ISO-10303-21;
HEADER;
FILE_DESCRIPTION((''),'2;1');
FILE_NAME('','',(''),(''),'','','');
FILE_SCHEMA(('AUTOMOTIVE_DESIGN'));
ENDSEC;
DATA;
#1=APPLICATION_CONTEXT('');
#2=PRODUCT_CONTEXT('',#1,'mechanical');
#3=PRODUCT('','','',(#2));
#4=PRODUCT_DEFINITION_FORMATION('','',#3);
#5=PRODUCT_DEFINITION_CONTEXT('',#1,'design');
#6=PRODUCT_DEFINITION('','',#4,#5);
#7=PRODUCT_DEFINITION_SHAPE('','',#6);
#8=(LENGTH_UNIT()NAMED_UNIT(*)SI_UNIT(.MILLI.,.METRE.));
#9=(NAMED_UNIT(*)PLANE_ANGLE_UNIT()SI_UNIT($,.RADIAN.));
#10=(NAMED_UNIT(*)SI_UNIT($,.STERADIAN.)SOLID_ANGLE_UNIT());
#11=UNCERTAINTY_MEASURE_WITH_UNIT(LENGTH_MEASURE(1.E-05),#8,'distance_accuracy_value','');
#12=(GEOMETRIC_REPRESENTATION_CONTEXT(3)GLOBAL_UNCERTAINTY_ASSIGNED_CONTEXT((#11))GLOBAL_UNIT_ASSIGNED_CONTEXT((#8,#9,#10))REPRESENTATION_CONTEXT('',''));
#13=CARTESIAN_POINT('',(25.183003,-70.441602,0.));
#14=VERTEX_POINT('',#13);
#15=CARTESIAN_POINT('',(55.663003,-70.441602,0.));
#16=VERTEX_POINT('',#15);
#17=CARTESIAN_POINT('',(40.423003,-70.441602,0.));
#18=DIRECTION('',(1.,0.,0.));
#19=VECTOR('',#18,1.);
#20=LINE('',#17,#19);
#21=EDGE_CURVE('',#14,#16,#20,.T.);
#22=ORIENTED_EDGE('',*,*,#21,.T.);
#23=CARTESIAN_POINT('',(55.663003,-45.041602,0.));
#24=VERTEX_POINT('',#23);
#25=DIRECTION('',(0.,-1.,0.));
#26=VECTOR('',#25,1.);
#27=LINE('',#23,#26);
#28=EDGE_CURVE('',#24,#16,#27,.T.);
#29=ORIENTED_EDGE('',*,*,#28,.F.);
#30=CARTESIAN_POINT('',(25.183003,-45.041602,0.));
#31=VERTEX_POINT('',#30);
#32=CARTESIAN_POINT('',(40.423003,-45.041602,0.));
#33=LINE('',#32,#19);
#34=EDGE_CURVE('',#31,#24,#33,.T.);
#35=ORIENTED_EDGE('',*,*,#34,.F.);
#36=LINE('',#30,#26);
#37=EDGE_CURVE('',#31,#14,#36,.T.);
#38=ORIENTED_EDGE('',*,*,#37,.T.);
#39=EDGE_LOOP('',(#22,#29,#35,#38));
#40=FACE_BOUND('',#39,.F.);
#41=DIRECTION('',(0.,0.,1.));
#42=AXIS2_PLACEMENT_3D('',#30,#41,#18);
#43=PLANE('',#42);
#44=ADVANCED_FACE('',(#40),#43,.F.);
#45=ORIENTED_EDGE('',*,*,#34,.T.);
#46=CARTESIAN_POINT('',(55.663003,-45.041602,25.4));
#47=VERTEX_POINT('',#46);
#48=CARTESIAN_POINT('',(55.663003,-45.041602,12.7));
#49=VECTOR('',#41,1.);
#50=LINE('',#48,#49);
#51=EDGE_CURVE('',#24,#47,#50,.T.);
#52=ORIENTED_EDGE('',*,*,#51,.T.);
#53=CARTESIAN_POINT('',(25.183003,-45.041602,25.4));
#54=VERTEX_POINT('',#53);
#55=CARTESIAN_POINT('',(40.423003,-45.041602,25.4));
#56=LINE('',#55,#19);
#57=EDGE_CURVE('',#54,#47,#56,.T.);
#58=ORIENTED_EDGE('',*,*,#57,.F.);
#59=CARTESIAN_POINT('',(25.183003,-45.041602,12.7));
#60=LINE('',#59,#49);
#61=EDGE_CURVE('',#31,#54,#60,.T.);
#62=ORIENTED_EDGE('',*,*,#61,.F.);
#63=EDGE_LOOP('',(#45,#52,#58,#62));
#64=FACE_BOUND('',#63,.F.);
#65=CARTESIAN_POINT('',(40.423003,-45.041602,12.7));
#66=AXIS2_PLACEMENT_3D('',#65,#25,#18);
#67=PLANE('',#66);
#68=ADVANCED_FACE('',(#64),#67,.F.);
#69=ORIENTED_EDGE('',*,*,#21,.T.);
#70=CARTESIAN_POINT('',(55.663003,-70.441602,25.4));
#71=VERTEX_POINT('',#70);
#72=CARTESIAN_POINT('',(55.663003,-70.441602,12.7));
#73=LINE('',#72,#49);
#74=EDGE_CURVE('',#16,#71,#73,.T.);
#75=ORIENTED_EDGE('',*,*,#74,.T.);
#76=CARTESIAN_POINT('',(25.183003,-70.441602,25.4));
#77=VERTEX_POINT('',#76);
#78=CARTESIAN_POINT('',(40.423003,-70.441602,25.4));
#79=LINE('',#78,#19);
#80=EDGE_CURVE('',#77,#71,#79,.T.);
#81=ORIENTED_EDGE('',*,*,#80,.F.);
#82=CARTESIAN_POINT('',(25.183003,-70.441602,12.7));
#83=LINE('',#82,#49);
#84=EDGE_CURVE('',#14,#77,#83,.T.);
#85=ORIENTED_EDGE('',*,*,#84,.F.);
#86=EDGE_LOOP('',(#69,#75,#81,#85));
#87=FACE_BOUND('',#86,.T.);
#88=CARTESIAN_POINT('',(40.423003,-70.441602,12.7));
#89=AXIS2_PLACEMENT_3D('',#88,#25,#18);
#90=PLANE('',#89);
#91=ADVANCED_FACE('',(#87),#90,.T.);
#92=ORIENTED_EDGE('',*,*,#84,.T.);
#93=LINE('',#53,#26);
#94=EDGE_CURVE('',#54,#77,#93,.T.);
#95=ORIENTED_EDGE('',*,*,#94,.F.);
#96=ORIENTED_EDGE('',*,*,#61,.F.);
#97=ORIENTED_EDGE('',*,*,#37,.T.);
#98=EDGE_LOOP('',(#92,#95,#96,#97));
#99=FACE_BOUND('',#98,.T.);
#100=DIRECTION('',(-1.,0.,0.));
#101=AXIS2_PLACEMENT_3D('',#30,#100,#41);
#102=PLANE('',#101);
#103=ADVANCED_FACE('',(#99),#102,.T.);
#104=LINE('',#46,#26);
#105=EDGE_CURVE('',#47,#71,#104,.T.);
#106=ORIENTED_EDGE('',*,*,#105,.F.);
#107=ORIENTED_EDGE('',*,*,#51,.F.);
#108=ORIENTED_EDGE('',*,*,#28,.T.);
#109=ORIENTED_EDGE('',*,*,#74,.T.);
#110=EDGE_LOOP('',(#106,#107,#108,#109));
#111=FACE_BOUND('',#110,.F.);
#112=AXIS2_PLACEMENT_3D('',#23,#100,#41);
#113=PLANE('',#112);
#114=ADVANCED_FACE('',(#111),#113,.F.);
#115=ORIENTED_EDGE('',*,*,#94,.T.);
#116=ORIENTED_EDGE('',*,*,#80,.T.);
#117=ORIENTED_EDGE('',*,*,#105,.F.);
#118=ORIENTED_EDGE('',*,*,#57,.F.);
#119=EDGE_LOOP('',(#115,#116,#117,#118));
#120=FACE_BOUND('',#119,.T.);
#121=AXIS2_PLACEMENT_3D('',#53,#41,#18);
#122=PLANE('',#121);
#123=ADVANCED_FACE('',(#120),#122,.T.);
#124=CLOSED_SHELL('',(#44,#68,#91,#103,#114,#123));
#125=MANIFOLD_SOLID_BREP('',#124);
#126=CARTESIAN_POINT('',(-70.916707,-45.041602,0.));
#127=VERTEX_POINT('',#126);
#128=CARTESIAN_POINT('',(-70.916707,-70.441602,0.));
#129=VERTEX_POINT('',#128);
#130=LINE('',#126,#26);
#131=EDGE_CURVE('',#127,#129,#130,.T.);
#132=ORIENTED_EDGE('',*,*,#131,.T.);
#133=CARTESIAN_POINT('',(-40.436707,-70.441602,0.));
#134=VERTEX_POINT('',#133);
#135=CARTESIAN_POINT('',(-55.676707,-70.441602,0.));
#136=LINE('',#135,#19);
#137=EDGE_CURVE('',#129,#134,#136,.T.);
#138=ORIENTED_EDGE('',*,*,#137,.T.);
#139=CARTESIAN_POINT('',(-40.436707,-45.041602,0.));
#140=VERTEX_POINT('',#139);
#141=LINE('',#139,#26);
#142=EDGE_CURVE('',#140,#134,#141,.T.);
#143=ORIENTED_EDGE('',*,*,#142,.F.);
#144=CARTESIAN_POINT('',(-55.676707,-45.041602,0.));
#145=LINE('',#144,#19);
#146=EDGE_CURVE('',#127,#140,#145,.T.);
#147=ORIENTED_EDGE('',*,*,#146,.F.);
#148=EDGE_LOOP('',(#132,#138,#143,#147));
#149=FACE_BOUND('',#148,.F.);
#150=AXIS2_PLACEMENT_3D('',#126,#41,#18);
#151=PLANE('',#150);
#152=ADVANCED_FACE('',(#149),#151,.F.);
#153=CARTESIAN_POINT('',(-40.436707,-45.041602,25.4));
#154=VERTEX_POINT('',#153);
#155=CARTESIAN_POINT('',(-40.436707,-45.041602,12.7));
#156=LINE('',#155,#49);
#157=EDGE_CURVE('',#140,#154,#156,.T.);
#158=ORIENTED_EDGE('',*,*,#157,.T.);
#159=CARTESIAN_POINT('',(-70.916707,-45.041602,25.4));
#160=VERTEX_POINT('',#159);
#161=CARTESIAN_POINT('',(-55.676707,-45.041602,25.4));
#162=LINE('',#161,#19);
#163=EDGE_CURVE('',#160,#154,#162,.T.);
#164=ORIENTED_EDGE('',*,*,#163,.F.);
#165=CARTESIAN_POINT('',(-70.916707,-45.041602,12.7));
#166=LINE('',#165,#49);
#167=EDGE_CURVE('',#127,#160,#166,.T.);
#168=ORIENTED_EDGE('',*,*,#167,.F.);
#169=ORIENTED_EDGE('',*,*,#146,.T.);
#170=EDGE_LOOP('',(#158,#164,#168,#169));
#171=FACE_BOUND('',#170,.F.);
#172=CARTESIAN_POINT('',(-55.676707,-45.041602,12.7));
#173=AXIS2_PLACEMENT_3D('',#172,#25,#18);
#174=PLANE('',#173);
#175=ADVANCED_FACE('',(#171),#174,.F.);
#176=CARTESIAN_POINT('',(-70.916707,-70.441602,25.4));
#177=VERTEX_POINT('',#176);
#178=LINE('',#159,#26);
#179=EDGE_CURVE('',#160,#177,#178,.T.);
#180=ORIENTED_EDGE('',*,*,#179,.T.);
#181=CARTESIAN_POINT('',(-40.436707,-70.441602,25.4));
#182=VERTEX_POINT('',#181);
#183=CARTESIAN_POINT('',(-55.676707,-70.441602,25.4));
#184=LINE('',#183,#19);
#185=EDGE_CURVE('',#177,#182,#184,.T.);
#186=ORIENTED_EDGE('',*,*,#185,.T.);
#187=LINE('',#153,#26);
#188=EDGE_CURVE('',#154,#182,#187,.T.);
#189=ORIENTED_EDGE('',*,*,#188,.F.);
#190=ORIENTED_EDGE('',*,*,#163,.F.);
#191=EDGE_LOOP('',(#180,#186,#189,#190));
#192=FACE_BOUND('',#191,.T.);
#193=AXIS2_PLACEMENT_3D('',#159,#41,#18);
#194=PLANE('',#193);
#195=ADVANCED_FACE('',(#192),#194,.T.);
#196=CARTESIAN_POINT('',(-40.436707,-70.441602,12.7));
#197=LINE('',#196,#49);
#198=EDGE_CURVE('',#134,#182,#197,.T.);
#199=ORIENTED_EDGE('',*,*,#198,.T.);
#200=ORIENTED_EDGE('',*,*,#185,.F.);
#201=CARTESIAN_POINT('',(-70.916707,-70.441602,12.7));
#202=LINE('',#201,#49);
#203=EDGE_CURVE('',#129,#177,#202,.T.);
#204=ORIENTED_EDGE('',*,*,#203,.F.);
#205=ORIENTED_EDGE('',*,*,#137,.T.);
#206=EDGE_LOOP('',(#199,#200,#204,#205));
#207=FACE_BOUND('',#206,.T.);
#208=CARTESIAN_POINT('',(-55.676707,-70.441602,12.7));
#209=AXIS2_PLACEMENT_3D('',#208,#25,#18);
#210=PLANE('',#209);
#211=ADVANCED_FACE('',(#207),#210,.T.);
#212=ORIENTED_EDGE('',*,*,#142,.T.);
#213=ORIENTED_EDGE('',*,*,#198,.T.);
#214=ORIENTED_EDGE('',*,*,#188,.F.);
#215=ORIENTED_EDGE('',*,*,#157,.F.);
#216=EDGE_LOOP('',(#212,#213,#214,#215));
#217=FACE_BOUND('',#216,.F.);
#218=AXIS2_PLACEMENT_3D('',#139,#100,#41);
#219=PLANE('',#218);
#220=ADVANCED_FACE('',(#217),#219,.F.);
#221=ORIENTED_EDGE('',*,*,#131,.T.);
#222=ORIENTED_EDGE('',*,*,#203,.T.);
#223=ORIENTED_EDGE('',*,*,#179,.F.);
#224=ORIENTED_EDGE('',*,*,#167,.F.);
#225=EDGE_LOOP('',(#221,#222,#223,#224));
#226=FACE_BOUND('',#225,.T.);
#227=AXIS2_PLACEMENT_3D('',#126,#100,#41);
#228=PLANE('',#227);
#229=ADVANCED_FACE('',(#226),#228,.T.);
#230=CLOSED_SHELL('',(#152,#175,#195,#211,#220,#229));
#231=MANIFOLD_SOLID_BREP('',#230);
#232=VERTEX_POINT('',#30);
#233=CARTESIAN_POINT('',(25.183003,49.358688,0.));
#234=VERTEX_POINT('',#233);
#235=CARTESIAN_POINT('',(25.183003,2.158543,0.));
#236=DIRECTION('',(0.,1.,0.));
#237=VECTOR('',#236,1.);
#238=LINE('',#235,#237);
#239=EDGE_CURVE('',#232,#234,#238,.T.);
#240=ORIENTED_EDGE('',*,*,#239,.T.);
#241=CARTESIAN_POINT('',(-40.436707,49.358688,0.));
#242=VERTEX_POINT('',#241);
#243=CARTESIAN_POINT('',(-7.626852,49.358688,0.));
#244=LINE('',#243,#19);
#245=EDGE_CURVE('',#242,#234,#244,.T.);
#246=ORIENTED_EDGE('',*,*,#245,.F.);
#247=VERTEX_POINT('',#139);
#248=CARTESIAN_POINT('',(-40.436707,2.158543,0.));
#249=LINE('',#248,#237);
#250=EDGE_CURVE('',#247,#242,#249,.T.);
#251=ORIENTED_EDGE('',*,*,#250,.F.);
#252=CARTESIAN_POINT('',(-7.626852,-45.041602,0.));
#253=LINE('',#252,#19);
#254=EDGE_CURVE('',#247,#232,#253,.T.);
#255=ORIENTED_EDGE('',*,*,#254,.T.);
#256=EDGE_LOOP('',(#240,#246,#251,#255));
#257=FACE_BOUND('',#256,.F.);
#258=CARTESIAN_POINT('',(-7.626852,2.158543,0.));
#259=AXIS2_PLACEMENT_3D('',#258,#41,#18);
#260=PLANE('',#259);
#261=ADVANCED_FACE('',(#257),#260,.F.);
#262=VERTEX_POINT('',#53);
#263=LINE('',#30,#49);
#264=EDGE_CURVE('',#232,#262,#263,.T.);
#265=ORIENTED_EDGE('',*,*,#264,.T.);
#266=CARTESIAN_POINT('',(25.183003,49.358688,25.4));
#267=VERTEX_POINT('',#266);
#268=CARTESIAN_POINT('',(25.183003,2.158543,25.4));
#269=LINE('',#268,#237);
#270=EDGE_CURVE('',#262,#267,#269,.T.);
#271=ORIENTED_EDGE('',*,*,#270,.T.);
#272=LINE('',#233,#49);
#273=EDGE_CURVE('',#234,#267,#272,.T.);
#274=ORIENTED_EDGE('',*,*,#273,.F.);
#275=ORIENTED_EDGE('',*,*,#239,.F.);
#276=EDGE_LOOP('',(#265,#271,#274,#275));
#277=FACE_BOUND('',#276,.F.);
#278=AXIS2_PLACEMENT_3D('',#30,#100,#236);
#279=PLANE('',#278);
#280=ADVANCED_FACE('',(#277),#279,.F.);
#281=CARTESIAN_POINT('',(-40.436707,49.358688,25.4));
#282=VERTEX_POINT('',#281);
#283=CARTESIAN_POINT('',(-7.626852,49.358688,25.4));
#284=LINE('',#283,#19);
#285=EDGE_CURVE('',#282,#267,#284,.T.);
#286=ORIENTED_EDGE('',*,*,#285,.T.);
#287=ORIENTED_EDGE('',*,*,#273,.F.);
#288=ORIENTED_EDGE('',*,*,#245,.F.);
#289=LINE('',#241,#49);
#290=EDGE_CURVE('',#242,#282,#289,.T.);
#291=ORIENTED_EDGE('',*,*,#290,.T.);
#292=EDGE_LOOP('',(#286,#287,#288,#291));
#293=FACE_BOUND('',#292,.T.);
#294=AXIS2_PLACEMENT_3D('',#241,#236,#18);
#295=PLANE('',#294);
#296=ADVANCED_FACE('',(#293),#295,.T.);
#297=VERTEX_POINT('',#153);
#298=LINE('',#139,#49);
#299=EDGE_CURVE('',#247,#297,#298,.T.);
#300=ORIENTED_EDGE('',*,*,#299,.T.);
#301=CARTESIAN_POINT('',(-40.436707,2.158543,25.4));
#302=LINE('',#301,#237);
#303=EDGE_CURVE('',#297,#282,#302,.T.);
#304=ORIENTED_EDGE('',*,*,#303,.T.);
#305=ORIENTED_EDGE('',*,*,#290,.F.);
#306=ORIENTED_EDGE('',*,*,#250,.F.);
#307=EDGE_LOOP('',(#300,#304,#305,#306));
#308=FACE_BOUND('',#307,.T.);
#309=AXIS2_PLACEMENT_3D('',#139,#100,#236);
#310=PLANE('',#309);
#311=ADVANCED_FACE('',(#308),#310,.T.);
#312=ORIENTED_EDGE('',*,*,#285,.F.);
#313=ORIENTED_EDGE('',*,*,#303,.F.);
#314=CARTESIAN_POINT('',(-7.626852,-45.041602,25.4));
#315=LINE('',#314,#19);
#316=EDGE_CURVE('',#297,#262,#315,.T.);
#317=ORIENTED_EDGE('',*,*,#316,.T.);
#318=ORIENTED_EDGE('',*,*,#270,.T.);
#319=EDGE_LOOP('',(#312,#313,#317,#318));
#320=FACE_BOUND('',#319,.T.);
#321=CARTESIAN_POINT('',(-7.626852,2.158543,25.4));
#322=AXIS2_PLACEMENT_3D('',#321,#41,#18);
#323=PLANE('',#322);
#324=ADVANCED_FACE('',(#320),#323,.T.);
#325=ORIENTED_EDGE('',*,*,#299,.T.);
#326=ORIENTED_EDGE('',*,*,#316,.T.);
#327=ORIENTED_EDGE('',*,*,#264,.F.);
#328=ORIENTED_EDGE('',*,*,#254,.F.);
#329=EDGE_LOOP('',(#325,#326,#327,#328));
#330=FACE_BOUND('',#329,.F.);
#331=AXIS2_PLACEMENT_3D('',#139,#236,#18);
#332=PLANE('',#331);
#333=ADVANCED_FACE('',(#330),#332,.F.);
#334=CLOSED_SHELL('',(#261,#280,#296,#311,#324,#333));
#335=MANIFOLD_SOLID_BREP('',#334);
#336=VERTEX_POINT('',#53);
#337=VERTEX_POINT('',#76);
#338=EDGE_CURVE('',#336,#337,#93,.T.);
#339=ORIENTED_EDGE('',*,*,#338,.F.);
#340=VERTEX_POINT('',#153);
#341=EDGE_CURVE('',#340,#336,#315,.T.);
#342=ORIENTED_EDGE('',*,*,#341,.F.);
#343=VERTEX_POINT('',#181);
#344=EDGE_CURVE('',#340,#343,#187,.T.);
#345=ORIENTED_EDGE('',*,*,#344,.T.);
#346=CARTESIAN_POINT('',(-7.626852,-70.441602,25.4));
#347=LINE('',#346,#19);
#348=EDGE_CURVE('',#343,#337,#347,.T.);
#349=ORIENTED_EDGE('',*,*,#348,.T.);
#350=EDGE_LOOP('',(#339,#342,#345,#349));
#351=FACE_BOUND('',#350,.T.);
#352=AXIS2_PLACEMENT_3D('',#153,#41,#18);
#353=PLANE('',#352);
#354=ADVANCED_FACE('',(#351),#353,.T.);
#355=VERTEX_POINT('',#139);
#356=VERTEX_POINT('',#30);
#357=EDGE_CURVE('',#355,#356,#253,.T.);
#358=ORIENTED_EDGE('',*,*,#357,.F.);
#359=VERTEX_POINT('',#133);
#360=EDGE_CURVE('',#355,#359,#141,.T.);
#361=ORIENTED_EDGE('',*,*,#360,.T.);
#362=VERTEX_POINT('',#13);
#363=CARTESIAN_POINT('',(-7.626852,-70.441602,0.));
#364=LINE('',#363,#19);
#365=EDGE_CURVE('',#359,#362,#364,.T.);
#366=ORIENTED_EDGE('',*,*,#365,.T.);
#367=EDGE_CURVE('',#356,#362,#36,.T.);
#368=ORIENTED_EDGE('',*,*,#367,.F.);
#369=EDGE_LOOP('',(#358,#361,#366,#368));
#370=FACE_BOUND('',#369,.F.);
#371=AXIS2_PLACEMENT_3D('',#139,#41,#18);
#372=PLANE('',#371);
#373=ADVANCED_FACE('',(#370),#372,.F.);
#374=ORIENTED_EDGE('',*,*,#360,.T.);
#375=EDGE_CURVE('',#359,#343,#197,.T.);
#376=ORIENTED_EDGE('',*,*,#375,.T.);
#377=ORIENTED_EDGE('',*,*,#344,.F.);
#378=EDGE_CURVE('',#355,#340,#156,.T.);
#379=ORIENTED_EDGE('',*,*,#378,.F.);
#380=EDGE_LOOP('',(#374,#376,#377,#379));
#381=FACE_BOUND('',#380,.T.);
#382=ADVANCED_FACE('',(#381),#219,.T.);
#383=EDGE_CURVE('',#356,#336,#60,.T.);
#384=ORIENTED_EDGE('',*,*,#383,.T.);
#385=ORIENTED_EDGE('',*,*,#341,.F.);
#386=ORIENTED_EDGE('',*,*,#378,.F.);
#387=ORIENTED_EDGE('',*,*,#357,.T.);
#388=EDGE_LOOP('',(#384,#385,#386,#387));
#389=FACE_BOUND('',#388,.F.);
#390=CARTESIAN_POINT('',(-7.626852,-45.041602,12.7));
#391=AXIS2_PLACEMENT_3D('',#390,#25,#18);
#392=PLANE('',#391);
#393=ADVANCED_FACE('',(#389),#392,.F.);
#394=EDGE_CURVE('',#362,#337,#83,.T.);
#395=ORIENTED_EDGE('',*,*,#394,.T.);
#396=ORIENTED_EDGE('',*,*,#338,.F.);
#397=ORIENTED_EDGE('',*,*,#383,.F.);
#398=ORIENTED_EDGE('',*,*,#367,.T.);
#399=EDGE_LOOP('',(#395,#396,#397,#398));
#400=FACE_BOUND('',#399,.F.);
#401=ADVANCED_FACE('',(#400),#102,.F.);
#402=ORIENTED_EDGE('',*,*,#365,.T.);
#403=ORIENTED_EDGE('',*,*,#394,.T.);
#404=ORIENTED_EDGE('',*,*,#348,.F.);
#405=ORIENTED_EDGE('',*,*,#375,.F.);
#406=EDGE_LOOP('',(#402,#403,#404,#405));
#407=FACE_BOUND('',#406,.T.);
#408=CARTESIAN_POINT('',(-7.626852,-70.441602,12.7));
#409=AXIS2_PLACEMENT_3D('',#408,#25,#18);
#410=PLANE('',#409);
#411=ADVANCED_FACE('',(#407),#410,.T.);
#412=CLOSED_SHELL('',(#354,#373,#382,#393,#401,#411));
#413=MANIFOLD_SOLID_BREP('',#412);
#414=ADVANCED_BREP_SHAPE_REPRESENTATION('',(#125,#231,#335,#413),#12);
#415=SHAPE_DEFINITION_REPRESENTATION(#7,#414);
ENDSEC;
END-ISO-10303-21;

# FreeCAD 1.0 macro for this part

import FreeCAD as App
import Part
import Sketcher

V = App.Vector
Q = App.Units.Quantity


def add_polygon(sketch, points):
    """Adds a closed chain of lines whose ends are joined by coincident constraints."""
    first, n = sketch.GeometryCount, len(points)
    for a, b in zip(points, points[1:] + points[:1]):
        sketch.addGeometry(Part.LineSegment(App.Vector(*a, 0), App.Vector(*b, 0)), False)
    for i in range(n):
        sketch.addConstraint(Sketcher.Constraint("Coincident", first + i, 2, first + (i + 1) % n, 1))

doc = App.newDocument("Part")
params = doc.addObject("Spreadsheet::Sheet", "Params")
for row, (alias, value) in enumerate([
    ("pad1_length", "1 in"),
    ("sketch2_height", "1 in"),
    ("sketch2_width", "1.2 in"),
    ("pad2_length", "1 in"),
    ("sketch3_height", "1 in"),
    ("pad3_length", "1 in"),
], start=1):
    params.set(f"A{row}", alias)
    params.set(f"B{row}", "=" + value)
    params.setAlias(f"B{row}", alias)

body = doc.addObject("PartDesign::Body", "Body")

# Sketch on XY plane
sketch1 = body.newObject("Sketcher::SketchObject", "Sketch")
sketch1.AttachmentSupport = (doc.getObject("XY_Plane"), [""])
sketch1.MapMode = "FlatFace"
add_polygon(sketch1, [(-40.436707, 49.358688), (-40.436707, -45.041602), (25.183003, -45.041602), (25.183003, 49.358688)])  # lines 0-3
sketch1.addConstraint(Sketcher.Constraint("Vertical", 0))
sketch1.addConstraint(Sketcher.Constraint("Horizontal", 1))
sketch1.addConstraint(Sketcher.Constraint("Vertical", 2))
sketch1.addConstraint(Sketcher.Constraint("Horizontal", 3))
sketch1.addConstraint(Sketcher.Constraint("DistanceX", 1, 1, 1, 2, Q("65.61971 mm")))
sketch1.addConstraint(Sketcher.Constraint("DistanceY", 0, 2, 0, 1, Q("94.40029 mm")))
sketch1.addConstraint(Sketcher.Constraint("DistanceY", 0, 2, -1, 1, Q("45.041602 mm")))
sketch1.addConstraint(Sketcher.Constraint("DistanceX", 0, 2, -1, 1, Q("40.436707 mm")))
pad1 = body.newObject("PartDesign::Pad", "Pad")
pad1.Profile = sketch1
pad1.setExpression("Length", "Params.pad1_length")
body2 = doc.addObject("PartDesign::Body", "Body001")
body2.AllowCompound = True

# Sketch on XZ plane
sketch2 = body2.newObject("Sketcher::SketchObject", "Sketch001")
sketch2.AttachmentSupport = (doc.getObject("XZ_Plane001"), [""])
sketch2.MapMode = "FlatFace"
sketch2.AttachmentOffset = App.Placement(V(0, 0, 45.041602), App.Rotation())
add_polygon(sketch2, [(-70.916707, 25.4), (-70.916707, 0), (-40.436707, 0), (-40.436707, 25.4)])  # lines 0-3
add_polygon(sketch2, [(25.183003, 25.4), (25.183003, 0), (55.663003, 0), (55.663003, 25.4)])  # lines 4-7
sketch2.addConstraint(Sketcher.Constraint("Vertical", 0))
sketch2.addConstraint(Sketcher.Constraint("Horizontal", 1))
sketch2.addConstraint(Sketcher.Constraint("Vertical", 2))
sketch2.addConstraint(Sketcher.Constraint("Horizontal", 3))
sketch2.addConstraint(Sketcher.Constraint("Vertical", 4))
sketch2.addConstraint(Sketcher.Constraint("Horizontal", 5))
sketch2.addConstraint(Sketcher.Constraint("Vertical", 6))
sketch2.addConstraint(Sketcher.Constraint("Horizontal", 7))
sketch2.addConstraint(Sketcher.Constraint("PointOnObject", 0, 2, -1))
sketch2.addConstraint(Sketcher.Constraint("PointOnObject", 4, 2, -1))
sketch2.addConstraint(Sketcher.Constraint("Horizontal", 3, 2, 6, 2))
sketch2.addConstraint(Sketcher.Constraint("Equal", 3, 5))
sketch2.addConstraint(Sketcher.Constraint("DistanceY", 0, 2, 0, 1, Q("1 in")))
sketch2.addConstraint(Sketcher.Constraint("DistanceX", 1, 1, 1, 2, Q("1.2 in")))
sketch2.addConstraint(Sketcher.Constraint("DistanceX", 1, 2, 4, 2, Q("65.61971 mm")))
sketch2.addConstraint(Sketcher.Constraint("DistanceX", 0, 2, -1, 1, Q("70.916707 mm")))
sketch2.setExpression("Constraints[20]", "Params.sketch2_height")
sketch2.setExpression("Constraints[21]", "Params.sketch2_width")
pad2 = body2.newObject("PartDesign::Pad", "Pad001")
pad2.Profile = sketch2
pad2.setExpression("Length", "Params.pad2_length")
body3 = doc.addObject("PartDesign::Body", "Body002")

# Sketch on XZ plane
sketch3 = body3.newObject("Sketcher::SketchObject", "Sketch002")
sketch3.AttachmentSupport = (doc.getObject("XZ_Plane002"), [""])
sketch3.MapMode = "FlatFace"
sketch3.AttachmentOffset = App.Placement(V(0, 0, 45.041602), App.Rotation())
add_polygon(sketch3, [(-40.436707, 25.4), (-40.436707, 0), (25.183003, 0), (25.183003, 25.4)])  # lines 0-3
sketch3.addConstraint(Sketcher.Constraint("Vertical", 0))
sketch3.addConstraint(Sketcher.Constraint("Horizontal", 1))
sketch3.addConstraint(Sketcher.Constraint("Vertical", 2))
sketch3.addConstraint(Sketcher.Constraint("Horizontal", 3))
sketch3.addConstraint(Sketcher.Constraint("PointOnObject", 0, 2, -1))
sketch3.addConstraint(Sketcher.Constraint("DistanceY", 0, 2, 0, 1, Q("1 in")))
sketch3.addConstraint(Sketcher.Constraint("DistanceX", 1, 1, 1, 2, Q("65.61971 mm")))
sketch3.addConstraint(Sketcher.Constraint("DistanceX", 0, 2, -1, 1, Q("40.436707 mm")))
sketch3.setExpression("Constraints[9]", "Params.sketch3_height")
pad3 = body3.newObject("PartDesign::Pad", "Pad002")
pad3.Profile = sketch3
pad3.setExpression("Length", "Params.pad3_length")

doc.recompute()
